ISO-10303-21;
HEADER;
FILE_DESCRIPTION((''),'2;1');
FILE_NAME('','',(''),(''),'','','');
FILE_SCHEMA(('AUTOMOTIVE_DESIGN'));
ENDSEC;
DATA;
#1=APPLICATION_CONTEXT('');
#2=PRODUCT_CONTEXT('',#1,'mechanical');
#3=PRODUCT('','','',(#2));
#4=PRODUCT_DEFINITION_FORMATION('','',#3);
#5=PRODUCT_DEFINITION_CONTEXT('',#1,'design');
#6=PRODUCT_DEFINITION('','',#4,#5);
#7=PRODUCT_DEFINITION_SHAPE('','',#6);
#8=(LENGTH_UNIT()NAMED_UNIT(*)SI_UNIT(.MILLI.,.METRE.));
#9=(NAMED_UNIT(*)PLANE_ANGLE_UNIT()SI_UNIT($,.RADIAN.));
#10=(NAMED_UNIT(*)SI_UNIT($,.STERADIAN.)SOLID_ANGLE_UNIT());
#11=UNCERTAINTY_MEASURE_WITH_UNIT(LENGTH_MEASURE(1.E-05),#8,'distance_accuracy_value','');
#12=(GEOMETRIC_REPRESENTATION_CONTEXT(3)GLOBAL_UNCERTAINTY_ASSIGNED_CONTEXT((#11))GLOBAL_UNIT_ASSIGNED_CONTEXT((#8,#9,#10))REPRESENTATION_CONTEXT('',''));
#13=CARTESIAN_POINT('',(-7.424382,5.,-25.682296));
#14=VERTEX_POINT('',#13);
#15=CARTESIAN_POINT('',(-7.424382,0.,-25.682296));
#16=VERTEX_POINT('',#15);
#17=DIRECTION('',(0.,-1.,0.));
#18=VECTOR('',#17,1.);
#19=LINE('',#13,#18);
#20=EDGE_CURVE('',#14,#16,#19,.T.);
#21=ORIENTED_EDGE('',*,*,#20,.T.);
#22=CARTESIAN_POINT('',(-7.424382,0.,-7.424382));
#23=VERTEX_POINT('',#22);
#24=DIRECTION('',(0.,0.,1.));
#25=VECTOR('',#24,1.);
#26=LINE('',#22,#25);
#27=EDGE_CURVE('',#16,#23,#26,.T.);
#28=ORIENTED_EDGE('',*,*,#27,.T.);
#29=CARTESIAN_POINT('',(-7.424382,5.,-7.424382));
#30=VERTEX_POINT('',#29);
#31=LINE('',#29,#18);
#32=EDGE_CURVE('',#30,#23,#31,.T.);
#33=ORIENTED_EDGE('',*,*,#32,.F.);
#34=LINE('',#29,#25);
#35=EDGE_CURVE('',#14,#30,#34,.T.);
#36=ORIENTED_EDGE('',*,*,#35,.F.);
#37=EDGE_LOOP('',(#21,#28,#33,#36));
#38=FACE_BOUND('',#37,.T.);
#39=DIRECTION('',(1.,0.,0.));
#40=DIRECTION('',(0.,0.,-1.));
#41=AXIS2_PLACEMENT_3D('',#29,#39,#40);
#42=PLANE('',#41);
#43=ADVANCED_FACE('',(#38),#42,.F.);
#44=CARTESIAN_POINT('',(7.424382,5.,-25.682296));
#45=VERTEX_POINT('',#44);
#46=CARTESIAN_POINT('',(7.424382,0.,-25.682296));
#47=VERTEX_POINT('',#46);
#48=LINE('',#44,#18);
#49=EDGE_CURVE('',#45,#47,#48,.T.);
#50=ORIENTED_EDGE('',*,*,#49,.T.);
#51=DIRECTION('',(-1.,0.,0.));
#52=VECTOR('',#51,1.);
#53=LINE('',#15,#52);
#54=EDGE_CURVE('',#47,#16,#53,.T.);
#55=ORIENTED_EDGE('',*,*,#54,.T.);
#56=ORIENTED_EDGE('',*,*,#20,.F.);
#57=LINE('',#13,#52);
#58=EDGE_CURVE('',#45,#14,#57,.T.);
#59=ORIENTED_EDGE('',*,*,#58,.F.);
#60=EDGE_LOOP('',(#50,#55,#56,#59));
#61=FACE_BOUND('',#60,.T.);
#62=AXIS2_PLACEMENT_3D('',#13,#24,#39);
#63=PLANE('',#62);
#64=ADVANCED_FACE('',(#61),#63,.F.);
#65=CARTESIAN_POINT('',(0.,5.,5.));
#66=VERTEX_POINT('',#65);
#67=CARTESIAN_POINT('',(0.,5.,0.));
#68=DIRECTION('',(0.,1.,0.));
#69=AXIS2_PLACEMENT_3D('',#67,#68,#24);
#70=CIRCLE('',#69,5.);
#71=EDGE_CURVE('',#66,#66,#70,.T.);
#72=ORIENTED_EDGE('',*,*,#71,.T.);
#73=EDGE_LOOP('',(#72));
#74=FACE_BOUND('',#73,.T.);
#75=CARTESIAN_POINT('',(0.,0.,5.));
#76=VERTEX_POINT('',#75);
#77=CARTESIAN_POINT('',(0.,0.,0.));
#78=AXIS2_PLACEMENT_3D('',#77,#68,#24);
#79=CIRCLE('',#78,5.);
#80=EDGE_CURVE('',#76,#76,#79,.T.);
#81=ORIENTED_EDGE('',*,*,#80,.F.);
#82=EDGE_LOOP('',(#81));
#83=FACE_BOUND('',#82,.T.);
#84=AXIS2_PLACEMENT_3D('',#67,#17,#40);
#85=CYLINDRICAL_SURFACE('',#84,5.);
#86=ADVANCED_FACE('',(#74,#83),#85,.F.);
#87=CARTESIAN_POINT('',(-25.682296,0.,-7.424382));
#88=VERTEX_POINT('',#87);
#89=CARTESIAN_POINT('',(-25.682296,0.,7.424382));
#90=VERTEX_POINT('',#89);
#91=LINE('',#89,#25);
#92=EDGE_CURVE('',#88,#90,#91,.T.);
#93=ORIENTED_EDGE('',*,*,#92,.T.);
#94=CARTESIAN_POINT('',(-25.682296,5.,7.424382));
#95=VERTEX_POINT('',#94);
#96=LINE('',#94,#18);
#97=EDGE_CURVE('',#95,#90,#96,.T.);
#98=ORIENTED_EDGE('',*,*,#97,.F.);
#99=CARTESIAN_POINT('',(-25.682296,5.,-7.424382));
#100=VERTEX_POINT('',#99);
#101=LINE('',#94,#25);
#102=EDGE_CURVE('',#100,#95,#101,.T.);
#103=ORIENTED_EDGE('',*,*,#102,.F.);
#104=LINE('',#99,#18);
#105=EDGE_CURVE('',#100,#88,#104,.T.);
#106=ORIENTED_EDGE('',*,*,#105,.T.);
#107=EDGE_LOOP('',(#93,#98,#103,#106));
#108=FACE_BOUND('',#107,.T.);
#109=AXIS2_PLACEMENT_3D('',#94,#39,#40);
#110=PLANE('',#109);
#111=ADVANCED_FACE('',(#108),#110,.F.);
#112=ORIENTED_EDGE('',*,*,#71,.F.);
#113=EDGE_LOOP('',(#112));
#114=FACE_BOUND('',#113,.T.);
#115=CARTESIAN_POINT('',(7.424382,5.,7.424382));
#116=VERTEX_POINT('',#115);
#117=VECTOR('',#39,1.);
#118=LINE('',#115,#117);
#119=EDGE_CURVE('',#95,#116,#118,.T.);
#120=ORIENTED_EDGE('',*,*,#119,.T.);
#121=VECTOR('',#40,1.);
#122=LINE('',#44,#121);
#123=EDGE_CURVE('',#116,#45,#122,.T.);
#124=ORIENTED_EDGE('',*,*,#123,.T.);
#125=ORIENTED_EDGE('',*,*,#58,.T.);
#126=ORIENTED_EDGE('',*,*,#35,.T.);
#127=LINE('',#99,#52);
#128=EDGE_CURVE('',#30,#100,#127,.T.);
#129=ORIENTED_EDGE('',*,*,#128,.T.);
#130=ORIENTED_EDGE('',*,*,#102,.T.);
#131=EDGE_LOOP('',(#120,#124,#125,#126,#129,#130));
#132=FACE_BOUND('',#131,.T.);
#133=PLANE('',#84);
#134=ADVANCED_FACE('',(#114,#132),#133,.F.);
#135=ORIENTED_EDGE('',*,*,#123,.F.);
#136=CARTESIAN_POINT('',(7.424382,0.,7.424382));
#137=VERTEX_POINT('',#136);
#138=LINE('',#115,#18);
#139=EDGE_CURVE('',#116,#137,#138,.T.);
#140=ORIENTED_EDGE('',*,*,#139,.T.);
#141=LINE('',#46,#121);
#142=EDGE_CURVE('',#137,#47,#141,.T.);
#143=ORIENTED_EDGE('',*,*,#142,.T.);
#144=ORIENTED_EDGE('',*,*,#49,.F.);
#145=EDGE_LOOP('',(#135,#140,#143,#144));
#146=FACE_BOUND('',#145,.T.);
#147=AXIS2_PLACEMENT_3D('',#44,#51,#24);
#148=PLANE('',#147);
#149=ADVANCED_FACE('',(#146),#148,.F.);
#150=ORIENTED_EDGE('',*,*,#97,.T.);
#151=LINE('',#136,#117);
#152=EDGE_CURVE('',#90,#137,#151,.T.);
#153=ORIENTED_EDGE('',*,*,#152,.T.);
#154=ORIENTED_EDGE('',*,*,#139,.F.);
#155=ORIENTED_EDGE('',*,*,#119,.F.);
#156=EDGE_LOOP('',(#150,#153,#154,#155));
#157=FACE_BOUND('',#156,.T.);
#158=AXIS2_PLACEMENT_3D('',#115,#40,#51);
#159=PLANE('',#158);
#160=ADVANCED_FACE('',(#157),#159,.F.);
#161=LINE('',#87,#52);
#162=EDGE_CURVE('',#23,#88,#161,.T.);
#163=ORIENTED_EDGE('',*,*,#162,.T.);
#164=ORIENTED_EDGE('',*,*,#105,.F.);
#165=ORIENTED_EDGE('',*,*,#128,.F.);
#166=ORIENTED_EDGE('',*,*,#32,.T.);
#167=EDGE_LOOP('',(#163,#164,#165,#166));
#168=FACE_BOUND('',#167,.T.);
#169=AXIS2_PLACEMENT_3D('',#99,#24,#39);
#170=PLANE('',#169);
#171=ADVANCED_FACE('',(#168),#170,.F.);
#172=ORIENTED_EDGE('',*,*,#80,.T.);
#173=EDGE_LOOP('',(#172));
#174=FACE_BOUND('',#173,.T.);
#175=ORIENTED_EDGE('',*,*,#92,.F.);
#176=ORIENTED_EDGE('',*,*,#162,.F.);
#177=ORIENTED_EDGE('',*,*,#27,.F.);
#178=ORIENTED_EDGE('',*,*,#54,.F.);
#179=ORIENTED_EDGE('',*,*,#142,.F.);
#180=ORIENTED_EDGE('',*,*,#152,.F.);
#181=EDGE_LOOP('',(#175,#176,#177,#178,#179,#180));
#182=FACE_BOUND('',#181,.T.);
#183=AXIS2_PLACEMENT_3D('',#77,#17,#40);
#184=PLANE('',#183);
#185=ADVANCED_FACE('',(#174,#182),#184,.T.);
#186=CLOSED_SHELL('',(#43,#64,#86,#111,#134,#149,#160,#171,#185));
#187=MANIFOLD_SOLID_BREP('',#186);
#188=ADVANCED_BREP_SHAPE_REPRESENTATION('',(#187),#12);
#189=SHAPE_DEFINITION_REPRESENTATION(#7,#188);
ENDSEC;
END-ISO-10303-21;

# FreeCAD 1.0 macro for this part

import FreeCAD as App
import Part
import Sketcher

V = App.Vector

doc = App.newDocument("Part")
body = doc.addObject("PartDesign::Body", "Body")

# Sketch on XZ plane
sketch1 = body.newObject("Sketcher::SketchObject", "Sketch")
sketch1.AttachmentSupport = (doc.getObject("XZ_Plane"), [""])
sketch1.MapMode = "FlatFace"
sketch1.addGeometry([
    Part.LineSegment(V(-7.424382, -7.424382, 0), V(-25.682296, -7.424382, 0)),  # 0
    Part.LineSegment(V(-25.682296, -7.424382, 0), V(-25.682296, 7.424382, 0)),  # 1
    Part.LineSegment(V(-25.682296, 7.424382, 0), V(7.424382, 7.424382, 0)),  # 2
    Part.LineSegment(V(7.424382, 7.424382, 0), V(7.424382, -25.682296, 0)),  # 3
    Part.LineSegment(V(7.424382, -25.682296, 0), V(-7.424382, -25.682296, 0)),  # 4
    Part.LineSegment(V(-7.424382, -25.682296, 0), V(-7.424382, -7.424382, 0)),  # 5
    Part.Circle(V(0, 0, 0), V(0, 0, 1), 5),  # 6
], False)
sketch1.addConstraint([
    Sketcher.Constraint("Coincident", 0, 2, 1, 1),
    Sketcher.Constraint("Coincident", 1, 2, 2, 1),
    Sketcher.Constraint("Coincident", 2, 2, 3, 1),
    Sketcher.Constraint("Coincident", 3, 2, 4, 1),
    Sketcher.Constraint("Coincident", 4, 2, 5, 1),
    Sketcher.Constraint("Coincident", 5, 2, 0, 1),
    Sketcher.Constraint("Horizontal", 0),
    Sketcher.Constraint("Vertical", 1),
    Sketcher.Constraint("Horizontal", 2),
    Sketcher.Constraint("Vertical", 3),
    Sketcher.Constraint("Horizontal", 4),
    Sketcher.Constraint("Vertical", 5),
    Sketcher.Constraint("Coincident", 6, 3, -1, 1),
    Sketcher.Constraint("Symmetric", 2, 2, 5, 2, -1, 1),
    Sketcher.Constraint("Equal", 4, 1),
    Sketcher.Constraint("Equal", 2, 3),
    Sketcher.Constraint("Diameter", 6, 10.0),
    Sketcher.Constraint("DistanceX", 2, 1, 2, 2, 33.106678),
    Sketcher.Constraint("DistanceX", 0, 2, 0, 1, 18.257914),
])
pad1 = body.newObject("PartDesign::Pad", "Pad")
pad1.Profile = sketch1
pad1.Length = 5
pad1.Reversed = True

doc.recompute()
